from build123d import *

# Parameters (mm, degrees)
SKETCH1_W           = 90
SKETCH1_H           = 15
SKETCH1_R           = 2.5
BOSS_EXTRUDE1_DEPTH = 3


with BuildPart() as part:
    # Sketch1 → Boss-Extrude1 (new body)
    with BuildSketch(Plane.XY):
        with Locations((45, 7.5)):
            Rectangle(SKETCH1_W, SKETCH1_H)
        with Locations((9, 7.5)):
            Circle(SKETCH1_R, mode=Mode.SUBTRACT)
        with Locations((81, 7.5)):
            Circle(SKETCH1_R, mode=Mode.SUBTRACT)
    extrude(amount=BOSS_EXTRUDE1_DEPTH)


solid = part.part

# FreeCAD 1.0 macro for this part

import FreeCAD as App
import Part
import Sketcher

V = App.Vector


def add_polygon(sketch, points):
    """Adds a closed chain of lines whose ends are joined by coincident constraints."""
    first, n = sketch.GeometryCount, len(points)
    for a, b in zip(points, points[1:] + points[:1]):
        sketch.addGeometry(Part.LineSegment(App.Vector(*a, 0), App.Vector(*b, 0)), False)
    for i in range(n):
        sketch.addConstraint(Sketcher.Constraint("Coincident", first + i, 2, first + (i + 1) % n, 1))

doc = App.newDocument("Part")
body = doc.addObject("PartDesign::Body", "Body")

sketch1 = doc.addObject("Sketcher::SketchObject", "Sketch")
body.addObject(sketch1)
sketch1.AttachmentSupport = (doc.XY_Plane, [""])
sketch1.MapMode = "FlatFace"
add_polygon(sketch1, [(0, 15), (0, 0), (90, 0), (90, 15)])
sketch1.addGeometry(Part.Circle(V(9, 7.5, 0), V(0, 0, 1), 2.5), False)
sketch1.addGeometry(Part.Circle(V(81, 7.5, 0), V(0, 0, 1), 2.5), False)
sketch1.addConstraint([
    Sketcher.Constraint("Vertical", 0),
    Sketcher.Constraint("Horizontal", 1),
    Sketcher.Constraint("Vertical", 2),
    Sketcher.Constraint("Horizontal", 3),
    Sketcher.Constraint("Coincident", 0, 2, -1, 1),
    Sketcher.Constraint("Equal", 4, 5),
    Sketcher.Constraint("Horizontal", 4, 3, 5, 3),
    Sketcher.Constraint("Diameter", 4, 5.0),
    Sketcher.Constraint("DistanceX", 1, 1, 1, 2, 90.0),
    Sketcher.Constraint("DistanceY", 0, 2, 0, 1, 15.0),
    Sketcher.Constraint("DistanceX", -1, 1, 4, 3, 9.0),
    Sketcher.Constraint("DistanceX", -1, 1, 5, 3, 81.0),
    Sketcher.Constraint("DistanceY", -1, 1, 4, 3, 7.5),
])
pad1 = doc.addObject("PartDesign::Pad", "Pad")
body.addObject(pad1)
pad1.Profile = sketch1
pad1.Length = 3

doc.recompute()
